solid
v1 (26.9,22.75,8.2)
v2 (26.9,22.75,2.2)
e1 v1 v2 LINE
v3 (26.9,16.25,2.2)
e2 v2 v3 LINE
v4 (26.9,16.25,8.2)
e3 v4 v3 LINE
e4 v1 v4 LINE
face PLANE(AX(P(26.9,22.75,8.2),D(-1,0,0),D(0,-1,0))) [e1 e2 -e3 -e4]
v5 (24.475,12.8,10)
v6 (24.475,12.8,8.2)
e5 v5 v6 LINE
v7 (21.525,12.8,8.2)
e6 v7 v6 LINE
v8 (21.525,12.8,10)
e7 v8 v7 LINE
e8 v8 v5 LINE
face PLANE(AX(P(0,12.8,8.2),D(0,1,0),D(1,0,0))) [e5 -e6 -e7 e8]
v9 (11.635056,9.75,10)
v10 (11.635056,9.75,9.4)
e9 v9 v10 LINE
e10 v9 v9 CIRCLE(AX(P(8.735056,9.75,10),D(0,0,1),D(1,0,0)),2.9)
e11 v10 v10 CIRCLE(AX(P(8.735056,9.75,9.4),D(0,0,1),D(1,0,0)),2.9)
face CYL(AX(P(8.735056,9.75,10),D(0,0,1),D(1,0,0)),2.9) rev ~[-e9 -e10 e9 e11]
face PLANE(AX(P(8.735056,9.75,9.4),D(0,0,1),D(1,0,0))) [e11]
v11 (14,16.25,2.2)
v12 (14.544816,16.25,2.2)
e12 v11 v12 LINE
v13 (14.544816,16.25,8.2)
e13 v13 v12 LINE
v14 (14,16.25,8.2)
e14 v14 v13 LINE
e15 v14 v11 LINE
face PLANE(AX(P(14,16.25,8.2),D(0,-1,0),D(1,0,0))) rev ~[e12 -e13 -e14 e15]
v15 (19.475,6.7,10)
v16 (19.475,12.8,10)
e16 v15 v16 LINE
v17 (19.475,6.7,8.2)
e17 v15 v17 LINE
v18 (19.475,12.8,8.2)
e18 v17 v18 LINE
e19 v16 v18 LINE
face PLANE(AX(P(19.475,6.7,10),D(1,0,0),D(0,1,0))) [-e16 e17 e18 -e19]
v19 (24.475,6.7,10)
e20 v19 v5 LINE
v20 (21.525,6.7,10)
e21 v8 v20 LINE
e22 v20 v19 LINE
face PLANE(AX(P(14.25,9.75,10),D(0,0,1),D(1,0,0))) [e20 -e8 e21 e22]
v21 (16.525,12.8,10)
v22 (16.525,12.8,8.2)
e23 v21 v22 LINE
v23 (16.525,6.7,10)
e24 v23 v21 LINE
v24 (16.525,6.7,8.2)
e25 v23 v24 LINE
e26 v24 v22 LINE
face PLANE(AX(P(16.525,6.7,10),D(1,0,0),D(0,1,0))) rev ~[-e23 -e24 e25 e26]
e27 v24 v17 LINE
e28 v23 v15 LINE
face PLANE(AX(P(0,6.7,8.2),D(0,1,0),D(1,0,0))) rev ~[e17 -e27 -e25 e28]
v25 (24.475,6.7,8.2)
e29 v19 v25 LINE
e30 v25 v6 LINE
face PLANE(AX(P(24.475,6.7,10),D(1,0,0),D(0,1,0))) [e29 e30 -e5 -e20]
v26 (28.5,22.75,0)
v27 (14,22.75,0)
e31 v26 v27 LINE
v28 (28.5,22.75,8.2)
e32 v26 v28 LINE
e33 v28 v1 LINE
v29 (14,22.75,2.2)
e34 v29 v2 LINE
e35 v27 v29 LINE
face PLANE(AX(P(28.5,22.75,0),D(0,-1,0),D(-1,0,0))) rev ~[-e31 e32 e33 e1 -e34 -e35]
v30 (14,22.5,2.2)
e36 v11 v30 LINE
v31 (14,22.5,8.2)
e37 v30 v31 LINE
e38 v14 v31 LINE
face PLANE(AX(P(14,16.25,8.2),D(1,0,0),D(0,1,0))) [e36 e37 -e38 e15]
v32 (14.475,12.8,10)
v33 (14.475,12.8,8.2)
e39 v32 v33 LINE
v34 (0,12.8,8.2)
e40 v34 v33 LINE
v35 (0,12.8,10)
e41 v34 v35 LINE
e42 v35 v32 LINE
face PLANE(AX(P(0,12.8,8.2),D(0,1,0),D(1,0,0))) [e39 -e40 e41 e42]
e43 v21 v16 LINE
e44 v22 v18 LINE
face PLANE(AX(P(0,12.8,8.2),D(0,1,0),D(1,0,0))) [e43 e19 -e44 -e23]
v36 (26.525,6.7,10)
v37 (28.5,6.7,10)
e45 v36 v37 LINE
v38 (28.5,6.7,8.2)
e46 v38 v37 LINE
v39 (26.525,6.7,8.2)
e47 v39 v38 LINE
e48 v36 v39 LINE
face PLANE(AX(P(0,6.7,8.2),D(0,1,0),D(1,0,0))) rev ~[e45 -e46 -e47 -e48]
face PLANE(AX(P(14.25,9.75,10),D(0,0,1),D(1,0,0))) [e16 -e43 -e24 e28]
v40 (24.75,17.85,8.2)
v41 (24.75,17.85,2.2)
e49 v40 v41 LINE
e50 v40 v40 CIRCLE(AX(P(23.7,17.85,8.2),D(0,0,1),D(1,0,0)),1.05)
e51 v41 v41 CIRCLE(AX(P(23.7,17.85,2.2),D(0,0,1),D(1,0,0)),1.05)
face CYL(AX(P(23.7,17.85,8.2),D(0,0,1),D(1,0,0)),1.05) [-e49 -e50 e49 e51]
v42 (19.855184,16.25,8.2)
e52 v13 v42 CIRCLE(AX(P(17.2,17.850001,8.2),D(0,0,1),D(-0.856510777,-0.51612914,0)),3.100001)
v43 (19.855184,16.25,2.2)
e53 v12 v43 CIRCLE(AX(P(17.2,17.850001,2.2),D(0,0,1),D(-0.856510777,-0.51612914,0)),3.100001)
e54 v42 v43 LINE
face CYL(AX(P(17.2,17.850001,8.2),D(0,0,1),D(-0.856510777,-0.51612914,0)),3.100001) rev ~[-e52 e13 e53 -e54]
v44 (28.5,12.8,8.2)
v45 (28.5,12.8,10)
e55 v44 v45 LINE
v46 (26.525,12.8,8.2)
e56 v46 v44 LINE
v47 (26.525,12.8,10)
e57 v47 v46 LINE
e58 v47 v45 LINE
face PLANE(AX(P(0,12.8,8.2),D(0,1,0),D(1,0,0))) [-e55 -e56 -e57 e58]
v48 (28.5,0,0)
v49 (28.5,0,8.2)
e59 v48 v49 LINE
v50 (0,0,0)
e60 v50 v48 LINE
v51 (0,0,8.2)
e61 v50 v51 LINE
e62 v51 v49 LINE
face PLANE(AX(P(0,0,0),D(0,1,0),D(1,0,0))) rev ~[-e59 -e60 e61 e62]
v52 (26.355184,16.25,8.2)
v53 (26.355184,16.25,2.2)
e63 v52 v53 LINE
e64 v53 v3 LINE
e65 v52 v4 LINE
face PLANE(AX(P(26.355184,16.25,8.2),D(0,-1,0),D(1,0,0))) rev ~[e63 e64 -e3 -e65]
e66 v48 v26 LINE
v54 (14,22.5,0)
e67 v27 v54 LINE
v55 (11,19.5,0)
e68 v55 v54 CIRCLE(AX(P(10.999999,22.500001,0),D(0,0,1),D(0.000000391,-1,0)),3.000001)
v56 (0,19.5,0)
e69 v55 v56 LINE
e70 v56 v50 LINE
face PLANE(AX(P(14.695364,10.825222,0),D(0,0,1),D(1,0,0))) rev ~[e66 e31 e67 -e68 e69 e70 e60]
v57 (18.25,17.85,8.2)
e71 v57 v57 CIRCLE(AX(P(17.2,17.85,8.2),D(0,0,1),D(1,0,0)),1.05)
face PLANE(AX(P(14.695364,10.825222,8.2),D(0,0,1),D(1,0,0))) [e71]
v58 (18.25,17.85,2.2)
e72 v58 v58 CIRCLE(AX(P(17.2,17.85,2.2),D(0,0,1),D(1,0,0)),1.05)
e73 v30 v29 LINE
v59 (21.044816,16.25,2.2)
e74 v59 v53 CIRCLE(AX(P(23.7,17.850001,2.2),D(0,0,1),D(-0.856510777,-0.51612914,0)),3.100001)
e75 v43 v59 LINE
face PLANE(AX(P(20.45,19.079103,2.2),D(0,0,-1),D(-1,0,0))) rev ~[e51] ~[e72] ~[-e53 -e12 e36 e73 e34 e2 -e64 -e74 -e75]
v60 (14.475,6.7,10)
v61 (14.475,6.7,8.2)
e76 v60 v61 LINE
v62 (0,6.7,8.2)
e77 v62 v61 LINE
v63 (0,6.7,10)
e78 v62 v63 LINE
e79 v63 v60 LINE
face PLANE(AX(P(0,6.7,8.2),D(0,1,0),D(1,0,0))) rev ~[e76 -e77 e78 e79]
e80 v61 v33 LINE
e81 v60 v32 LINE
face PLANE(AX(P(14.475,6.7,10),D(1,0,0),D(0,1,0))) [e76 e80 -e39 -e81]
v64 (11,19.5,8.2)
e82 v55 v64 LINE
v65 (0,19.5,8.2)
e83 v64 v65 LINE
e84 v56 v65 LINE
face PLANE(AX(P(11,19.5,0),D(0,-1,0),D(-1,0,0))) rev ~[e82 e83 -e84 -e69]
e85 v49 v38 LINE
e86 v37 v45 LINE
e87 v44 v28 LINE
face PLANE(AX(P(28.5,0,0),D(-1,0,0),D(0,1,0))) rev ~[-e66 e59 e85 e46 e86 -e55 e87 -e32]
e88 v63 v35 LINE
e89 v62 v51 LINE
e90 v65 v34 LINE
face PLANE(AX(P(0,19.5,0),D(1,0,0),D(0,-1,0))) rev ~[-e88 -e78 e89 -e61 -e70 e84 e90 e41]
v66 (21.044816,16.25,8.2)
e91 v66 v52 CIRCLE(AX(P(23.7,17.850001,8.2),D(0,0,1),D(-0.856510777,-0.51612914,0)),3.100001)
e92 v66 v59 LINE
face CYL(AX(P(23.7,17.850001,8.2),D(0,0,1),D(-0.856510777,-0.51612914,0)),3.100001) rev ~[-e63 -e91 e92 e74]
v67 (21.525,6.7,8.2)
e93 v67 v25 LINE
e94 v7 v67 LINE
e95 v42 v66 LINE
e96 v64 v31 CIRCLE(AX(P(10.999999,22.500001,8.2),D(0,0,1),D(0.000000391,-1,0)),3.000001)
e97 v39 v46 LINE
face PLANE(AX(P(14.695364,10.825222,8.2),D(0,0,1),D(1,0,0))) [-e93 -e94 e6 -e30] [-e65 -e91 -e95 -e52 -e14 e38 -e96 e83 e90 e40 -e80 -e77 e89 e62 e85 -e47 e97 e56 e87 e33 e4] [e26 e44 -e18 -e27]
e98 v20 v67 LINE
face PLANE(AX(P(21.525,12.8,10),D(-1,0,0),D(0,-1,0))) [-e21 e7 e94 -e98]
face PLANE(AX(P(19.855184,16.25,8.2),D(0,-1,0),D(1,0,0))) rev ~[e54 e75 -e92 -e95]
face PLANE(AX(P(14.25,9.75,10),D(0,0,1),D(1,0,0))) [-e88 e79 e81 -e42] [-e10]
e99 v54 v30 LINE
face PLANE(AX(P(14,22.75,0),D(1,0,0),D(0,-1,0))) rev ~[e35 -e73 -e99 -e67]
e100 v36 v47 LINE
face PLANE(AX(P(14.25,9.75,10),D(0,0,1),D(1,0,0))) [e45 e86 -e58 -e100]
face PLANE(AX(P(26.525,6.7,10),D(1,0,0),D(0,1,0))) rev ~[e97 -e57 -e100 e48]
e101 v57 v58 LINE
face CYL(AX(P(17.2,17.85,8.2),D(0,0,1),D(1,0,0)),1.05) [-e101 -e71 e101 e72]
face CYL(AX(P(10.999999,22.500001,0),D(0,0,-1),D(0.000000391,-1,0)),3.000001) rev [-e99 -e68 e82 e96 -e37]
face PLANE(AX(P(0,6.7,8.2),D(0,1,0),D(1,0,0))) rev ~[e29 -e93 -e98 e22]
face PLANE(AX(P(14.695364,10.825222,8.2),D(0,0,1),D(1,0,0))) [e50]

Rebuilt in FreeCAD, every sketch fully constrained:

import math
import FreeCAD as App
import Part
import Sketcher

V = App.Vector

doc = App.newDocument("Part")
body = doc.addObject("PartDesign::Body", "Body")

sketch1 = body.newObject("Sketcher::SketchObject", "Sketch")
sketch1.AttachmentSupport = (doc.getObject("XY_Plane"), [""])
sketch1.MapMode = "FlatFace"
sketch1.addGeometry([
    Part.LineSegment(V(0, 0, 0), V(28.5, 0, 0)),
    Part.LineSegment(V(28.5, 0, 0), V(28.5, 22.75, 0)),
    Part.LineSegment(V(28.5, 22.75, 0), V(14, 22.75, 0)),
    Part.LineSegment(V(14, 22.75, 0), V(14, 22.5, 0)),
    Part.ArcOfCircle(Part.Circle(V(10.999999, 22.500001, 0), V(0, 0, 1), 3.000001), math.radians(-89.999978), math.radians(-0.000022)),
    Part.LineSegment(V(11, 19.5, 0), V(0, 19.5, 0)),
    Part.LineSegment(V(0, 19.5, 0), V(0, 0, 0)),
], False)
sketch1.addConstraint([
    Sketcher.Constraint("Coincident", 0, 2, 1, 1),
    Sketcher.Constraint("Coincident", 1, 2, 2, 1),
    Sketcher.Constraint("Coincident", 2, 2, 3, 1),
    Sketcher.Constraint("Tangent", 3, 2, 4, 2),
    Sketcher.Constraint("Tangent", 4, 1, 5, 1),
    Sketcher.Constraint("Coincident", 5, 2, 6, 1),
    Sketcher.Constraint("Coincident", 6, 2, 0, 1),
    Sketcher.Constraint("Horizontal", 0),
    Sketcher.Constraint("Vertical", 1),
    Sketcher.Constraint("Horizontal", 2),
    Sketcher.Constraint("Vertical", 3),
    Sketcher.Constraint("Horizontal", 5),
    Sketcher.Constraint("Vertical", 6),
    Sketcher.Constraint("Coincident", 6, 2, -1, 1),
    Sketcher.Constraint("Radius", 4, 3.000001),
    Sketcher.Constraint("DistanceX", 5, 2, 5, 1, 11.0),
    Sketcher.Constraint("DistanceX", 0, 1, 0, 2, 28.5),
    Sketcher.Constraint("DistanceY", 6, 2, 6, 1, 19.5),
    Sketcher.Constraint("DistanceY", 1, 1, 1, 2, 22.75),
])
pad1 = body.newObject("PartDesign::Pad", "Pad")
pad1.Profile = sketch1
pad1.Length = 8.2

sketch2 = body.newObject("Sketcher::SketchObject", "Sketch001")
sketch2.AttachmentSupport = (doc.getObject("XY_Plane"), [""])
sketch2.MapMode = "FlatFace"
sketch2.AttachmentOffset = App.Placement(V(0, 0, 8.2), App.Rotation())
sketch2.addGeometry([
    Part.LineSegment(V(0, 12.8, 0), V(0, 6.7, 0)),
    Part.LineSegment(V(0, 6.7, 0), V(28.5, 6.7, 0)),
    Part.LineSegment(V(28.5, 6.7, 0), V(28.5, 12.8, 0)),
    Part.LineSegment(V(28.5, 12.8, 0), V(0, 12.8, 0)),
], False)
sketch2.addConstraint([
    Sketcher.Constraint("Coincident", 0, 2, 1, 1),
    Sketcher.Constraint("Coincident", 1, 2, 2, 1),
    Sketcher.Constraint("Coincident", 2, 2, 3, 1),
    Sketcher.Constraint("Coincident", 3, 2, 0, 1),
    Sketcher.Constraint("Vertical", 0),
    Sketcher.Constraint("Horizontal", 1),
    Sketcher.Constraint("Vertical", 2),
    Sketcher.Constraint("Horizontal", 3),
    Sketcher.Constraint("PointOnObject", 0, 2, -2),
    Sketcher.Constraint("DistanceX", 1, 1, 1, 2, 28.5),
    Sketcher.Constraint("DistanceY", 0, 2, 0, 1, 6.1),
    Sketcher.Constraint("DistanceY", -1, 1, 0, 2, 6.7),
])
pad2 = body.newObject("PartDesign::Pad", "Pad001")
pad2.Profile = sketch2
pad2.Length = 1.8

sketch3 = body.newObject("Sketcher::SketchObject", "Sketch002")
sketch3.AttachmentSupport = (doc.getObject("XY_Plane"), [""])
sketch3.MapMode = "FlatFace"
sketch3.AttachmentOffset = App.Placement(V(0, 0, 10), App.Rotation())
sketch3.addGeometry(Part.Circle(V(8.735056, 9.75, 0), V(0, 0, 1), 2.9), False)
sketch3.addConstraint([
    Sketcher.Constraint("Diameter", 0, 5.8),
    Sketcher.Constraint("DistanceY", -1, 1, 0, 3, 9.75),
    Sketcher.Constraint("DistanceX", -1, 1, 0, 3, 8.735056),
])
pocket1 = body.newObject("PartDesign::Pocket", "Pocket")
pocket1.Profile = sketch3
pocket1.Length = 0.6

sketch4 = body.newObject("Sketcher::SketchObject", "Sketch003")
sketch4.AttachmentSupport = (doc.getObject("XY_Plane"), [""])
sketch4.MapMode = "FlatFace"
sketch4.AttachmentOffset = App.Placement(V(0, 0, 10), App.Rotation())
sketch4.addGeometry([
    Part.LineSegment(V(14.475, 12.8, 0), V(14.475, 6.7, 0)),
    Part.LineSegment(V(14.475, 6.7, 0), V(16.525, 6.7, 0)),
    Part.LineSegment(V(16.525, 6.7, 0), V(16.525, 12.8, 0)),
    Part.LineSegment(V(16.525, 12.8, 0), V(14.475, 12.8, 0)),
    Part.LineSegment(V(21.525, 6.7, 0), V(21.525, 12.8, 0)),
    Part.LineSegment(V(21.525, 12.8, 0), V(19.475, 12.8, 0)),
    Part.LineSegment(V(19.475, 12.8, 0), V(19.475, 6.7, 0)),
    Part.LineSegment(V(19.475, 6.7, 0), V(21.525, 6.7, 0)),
    Part.LineSegment(V(24.475, 12.8, 0), V(24.475, 6.7, 0)),
    Part.LineSegment(V(24.475, 6.7, 0), V(26.525, 6.7, 0)),
    Part.LineSegment(V(26.525, 6.7, 0), V(26.525, 12.8, 0)),
    Part.LineSegment(V(26.525, 12.8, 0), V(24.475, 12.8, 0)),
], False)
sketch4.addConstraint([
    Sketcher.Constraint("Coincident", 0, 2, 1, 1),
    Sketcher.Constraint("Coincident", 1, 2, 2, 1),
    Sketcher.Constraint("Coincident", 2, 2, 3, 1),
    Sketcher.Constraint("Coincident", 3, 2, 0, 1),
    Sketcher.Constraint("Coincident", 4, 2, 5, 1),
    Sketcher.Constraint("Coincident", 5, 2, 6, 1),
    Sketcher.Constraint("Coincident", 6, 2, 7, 1),
    Sketcher.Constraint("Coincident", 7, 2, 4, 1),
    Sketcher.Constraint("Coincident", 8, 2, 9, 1),
    Sketcher.Constraint("Coincident", 9, 2, 10, 1),
    Sketcher.Constraint("Coincident", 10, 2, 11, 1),
    Sketcher.Constraint("Coincident", 11, 2, 8, 1),
    Sketcher.Constraint("Vertical", 0),
    Sketcher.Constraint("Horizontal", 1),
    Sketcher.Constraint("Vertical", 2),
    Sketcher.Constraint("Horizontal", 3),
    Sketcher.Constraint("Vertical", 4),
    Sketcher.Constraint("Horizontal", 5),
    Sketcher.Constraint("Vertical", 6),
    Sketcher.Constraint("Horizontal", 7),
    Sketcher.Constraint("Vertical", 8),
    Sketcher.Constraint("Horizontal", 9),
    Sketcher.Constraint("Vertical", 10),
    Sketcher.Constraint("Horizontal", 11),
    Sketcher.Constraint("Horizontal", 3, 2, 4, 2),
    Sketcher.Constraint("Horizontal", 1, 2, 6, 2),
    Sketcher.Constraint("Horizontal", 7, 2, 8, 2),
    Sketcher.Constraint("Horizontal", 5, 2, 10, 2),
    Sketcher.Constraint("Equal", 3, 5),
    Sketcher.Constraint("Equal", 7, 9),
    Sketcher.Constraint("DistanceY", 0, 2, 0, 1, 6.1),
    Sketcher.Constraint("DistanceX", 2, 2, 4, 2, 5.0),
    Sketcher.Constraint("DistanceX", 6, 2, 8, 2, 5.0),
    Sketcher.Constraint("DistanceX", 1, 1, 1, 2, 2.05),
    Sketcher.Constraint("DistanceY", -1, 1, 0, 2, 6.7),
    Sketcher.Constraint("DistanceX", -1, 1, 0, 2, 14.475),
])
pocket2 = body.newObject("PartDesign::Pocket", "Pocket001")
pocket2.Profile = sketch4
pocket2.Length = 1.8

sketch5 = body.newObject("Sketcher::SketchObject", "Sketch004")
sketch5.AttachmentSupport = (doc.getObject("XY_Plane"), [""])
sketch5.MapMode = "FlatFace"
sketch5.AttachmentOffset = App.Placement(V(0, 0, 8.2), App.Rotation())
sketch5.addGeometry([
    Part.LineSegment(V(26.9, 22.75, 0), V(14, 22.75, 0)),
    Part.LineSegment(V(14, 22.75, 0), V(14, 16.25, 0)),
    Part.LineSegment(V(14, 16.25, 0), V(14.544816, 16.25, 0)),
    Part.ArcOfCircle(Part.Circle(V(17.2, 17.850001, 0), V(0, 0, 1), 3.100001), math.radians(-148.927042), math.radians(-31.072958)),
    Part.LineSegment(V(19.855184, 16.25, 0), V(21.044816, 16.25, 0)),
    Part.ArcOfCircle(Part.Circle(V(23.7, 17.850001, 0), V(0, 0, 1), 3.100001), math.radians(-148.927042), math.radians(-31.072958)),
    Part.LineSegment(V(26.355184, 16.25, 0), V(26.9, 16.25, 0)),
    Part.LineSegment(V(26.9, 16.25, 0), V(26.9, 22.75, 0)),
    Part.Circle(V(23.7, 17.85, 0), V(0, 0, 1), 1.05),
    Part.Circle(V(17.2, 17.85, 0), V(0, 0, 1), 1.05),
], False)
sketch5.addConstraint([
    Sketcher.Constraint("Coincident", 0, 2, 1, 1),
    Sketcher.Constraint("Coincident", 1, 2, 2, 1),
    Sketcher.Constraint("Coincident", 2, 2, 3, 1),
    Sketcher.Constraint("Coincident", 3, 2, 4, 1),
    Sketcher.Constraint("Coincident", 4, 2, 5, 1),
    Sketcher.Constraint("Coincident", 5, 2, 6, 1),
    Sketcher.Constraint("Coincident", 6, 2, 7, 1),
    Sketcher.Constraint("Coincident", 7, 2, 0, 1),
    Sketcher.Constraint("Horizontal", 0),
    Sketcher.Constraint("Vertical", 1),
    Sketcher.Constraint("Horizontal", 2),
    Sketcher.Constraint("Horizontal", 4),
    Sketcher.Constraint("Horizontal", 6),
    Sketcher.Constraint("Vertical", 7),
    Sketcher.Constraint("Coincident", 8, 3, 5, 3),
    Sketcher.Constraint("Coincident", 9, 3, 3, 3),
    Sketcher.Constraint("Equal", 3, 5),
    Sketcher.Constraint("Equal", 8, 9),
    Sketcher.Constraint("Horizontal", 3, 3, 5, 3),
    Sketcher.Constraint("Horizontal", 2, 2, 3, 2),
    Sketcher.Constraint("Horizontal", 4, 2, 5, 2),
    Sketcher.Constraint("Equal", 2, 6),
    Sketcher.Constraint("Diameter", 8, 2.1),
    Sketcher.Constraint("Radius", 3, 3.100001),
    Sketcher.Constraint("DistanceX", 0, 2, 0, 1, 12.9),
    Sketcher.Constraint("DistanceY", 1, 2, 1, 1, 6.5),
    Sketcher.Constraint("DistanceX", -1, 1, 0, 2, 14.0),
    Sketcher.Constraint("DistanceX", -1, 1, 3, 3, 17.2),
    Sketcher.Constraint("DistanceY", 3, 3, 0, 2, 4.899999),
    Sketcher.Constraint("DistanceY", -1, 1, 3, 3, 17.850001),
])
pocket3 = body.newObject("PartDesign::Pocket", "Pocket002")
pocket3.Profile = sketch5
pocket3.Length = 6

doc.recompute()
